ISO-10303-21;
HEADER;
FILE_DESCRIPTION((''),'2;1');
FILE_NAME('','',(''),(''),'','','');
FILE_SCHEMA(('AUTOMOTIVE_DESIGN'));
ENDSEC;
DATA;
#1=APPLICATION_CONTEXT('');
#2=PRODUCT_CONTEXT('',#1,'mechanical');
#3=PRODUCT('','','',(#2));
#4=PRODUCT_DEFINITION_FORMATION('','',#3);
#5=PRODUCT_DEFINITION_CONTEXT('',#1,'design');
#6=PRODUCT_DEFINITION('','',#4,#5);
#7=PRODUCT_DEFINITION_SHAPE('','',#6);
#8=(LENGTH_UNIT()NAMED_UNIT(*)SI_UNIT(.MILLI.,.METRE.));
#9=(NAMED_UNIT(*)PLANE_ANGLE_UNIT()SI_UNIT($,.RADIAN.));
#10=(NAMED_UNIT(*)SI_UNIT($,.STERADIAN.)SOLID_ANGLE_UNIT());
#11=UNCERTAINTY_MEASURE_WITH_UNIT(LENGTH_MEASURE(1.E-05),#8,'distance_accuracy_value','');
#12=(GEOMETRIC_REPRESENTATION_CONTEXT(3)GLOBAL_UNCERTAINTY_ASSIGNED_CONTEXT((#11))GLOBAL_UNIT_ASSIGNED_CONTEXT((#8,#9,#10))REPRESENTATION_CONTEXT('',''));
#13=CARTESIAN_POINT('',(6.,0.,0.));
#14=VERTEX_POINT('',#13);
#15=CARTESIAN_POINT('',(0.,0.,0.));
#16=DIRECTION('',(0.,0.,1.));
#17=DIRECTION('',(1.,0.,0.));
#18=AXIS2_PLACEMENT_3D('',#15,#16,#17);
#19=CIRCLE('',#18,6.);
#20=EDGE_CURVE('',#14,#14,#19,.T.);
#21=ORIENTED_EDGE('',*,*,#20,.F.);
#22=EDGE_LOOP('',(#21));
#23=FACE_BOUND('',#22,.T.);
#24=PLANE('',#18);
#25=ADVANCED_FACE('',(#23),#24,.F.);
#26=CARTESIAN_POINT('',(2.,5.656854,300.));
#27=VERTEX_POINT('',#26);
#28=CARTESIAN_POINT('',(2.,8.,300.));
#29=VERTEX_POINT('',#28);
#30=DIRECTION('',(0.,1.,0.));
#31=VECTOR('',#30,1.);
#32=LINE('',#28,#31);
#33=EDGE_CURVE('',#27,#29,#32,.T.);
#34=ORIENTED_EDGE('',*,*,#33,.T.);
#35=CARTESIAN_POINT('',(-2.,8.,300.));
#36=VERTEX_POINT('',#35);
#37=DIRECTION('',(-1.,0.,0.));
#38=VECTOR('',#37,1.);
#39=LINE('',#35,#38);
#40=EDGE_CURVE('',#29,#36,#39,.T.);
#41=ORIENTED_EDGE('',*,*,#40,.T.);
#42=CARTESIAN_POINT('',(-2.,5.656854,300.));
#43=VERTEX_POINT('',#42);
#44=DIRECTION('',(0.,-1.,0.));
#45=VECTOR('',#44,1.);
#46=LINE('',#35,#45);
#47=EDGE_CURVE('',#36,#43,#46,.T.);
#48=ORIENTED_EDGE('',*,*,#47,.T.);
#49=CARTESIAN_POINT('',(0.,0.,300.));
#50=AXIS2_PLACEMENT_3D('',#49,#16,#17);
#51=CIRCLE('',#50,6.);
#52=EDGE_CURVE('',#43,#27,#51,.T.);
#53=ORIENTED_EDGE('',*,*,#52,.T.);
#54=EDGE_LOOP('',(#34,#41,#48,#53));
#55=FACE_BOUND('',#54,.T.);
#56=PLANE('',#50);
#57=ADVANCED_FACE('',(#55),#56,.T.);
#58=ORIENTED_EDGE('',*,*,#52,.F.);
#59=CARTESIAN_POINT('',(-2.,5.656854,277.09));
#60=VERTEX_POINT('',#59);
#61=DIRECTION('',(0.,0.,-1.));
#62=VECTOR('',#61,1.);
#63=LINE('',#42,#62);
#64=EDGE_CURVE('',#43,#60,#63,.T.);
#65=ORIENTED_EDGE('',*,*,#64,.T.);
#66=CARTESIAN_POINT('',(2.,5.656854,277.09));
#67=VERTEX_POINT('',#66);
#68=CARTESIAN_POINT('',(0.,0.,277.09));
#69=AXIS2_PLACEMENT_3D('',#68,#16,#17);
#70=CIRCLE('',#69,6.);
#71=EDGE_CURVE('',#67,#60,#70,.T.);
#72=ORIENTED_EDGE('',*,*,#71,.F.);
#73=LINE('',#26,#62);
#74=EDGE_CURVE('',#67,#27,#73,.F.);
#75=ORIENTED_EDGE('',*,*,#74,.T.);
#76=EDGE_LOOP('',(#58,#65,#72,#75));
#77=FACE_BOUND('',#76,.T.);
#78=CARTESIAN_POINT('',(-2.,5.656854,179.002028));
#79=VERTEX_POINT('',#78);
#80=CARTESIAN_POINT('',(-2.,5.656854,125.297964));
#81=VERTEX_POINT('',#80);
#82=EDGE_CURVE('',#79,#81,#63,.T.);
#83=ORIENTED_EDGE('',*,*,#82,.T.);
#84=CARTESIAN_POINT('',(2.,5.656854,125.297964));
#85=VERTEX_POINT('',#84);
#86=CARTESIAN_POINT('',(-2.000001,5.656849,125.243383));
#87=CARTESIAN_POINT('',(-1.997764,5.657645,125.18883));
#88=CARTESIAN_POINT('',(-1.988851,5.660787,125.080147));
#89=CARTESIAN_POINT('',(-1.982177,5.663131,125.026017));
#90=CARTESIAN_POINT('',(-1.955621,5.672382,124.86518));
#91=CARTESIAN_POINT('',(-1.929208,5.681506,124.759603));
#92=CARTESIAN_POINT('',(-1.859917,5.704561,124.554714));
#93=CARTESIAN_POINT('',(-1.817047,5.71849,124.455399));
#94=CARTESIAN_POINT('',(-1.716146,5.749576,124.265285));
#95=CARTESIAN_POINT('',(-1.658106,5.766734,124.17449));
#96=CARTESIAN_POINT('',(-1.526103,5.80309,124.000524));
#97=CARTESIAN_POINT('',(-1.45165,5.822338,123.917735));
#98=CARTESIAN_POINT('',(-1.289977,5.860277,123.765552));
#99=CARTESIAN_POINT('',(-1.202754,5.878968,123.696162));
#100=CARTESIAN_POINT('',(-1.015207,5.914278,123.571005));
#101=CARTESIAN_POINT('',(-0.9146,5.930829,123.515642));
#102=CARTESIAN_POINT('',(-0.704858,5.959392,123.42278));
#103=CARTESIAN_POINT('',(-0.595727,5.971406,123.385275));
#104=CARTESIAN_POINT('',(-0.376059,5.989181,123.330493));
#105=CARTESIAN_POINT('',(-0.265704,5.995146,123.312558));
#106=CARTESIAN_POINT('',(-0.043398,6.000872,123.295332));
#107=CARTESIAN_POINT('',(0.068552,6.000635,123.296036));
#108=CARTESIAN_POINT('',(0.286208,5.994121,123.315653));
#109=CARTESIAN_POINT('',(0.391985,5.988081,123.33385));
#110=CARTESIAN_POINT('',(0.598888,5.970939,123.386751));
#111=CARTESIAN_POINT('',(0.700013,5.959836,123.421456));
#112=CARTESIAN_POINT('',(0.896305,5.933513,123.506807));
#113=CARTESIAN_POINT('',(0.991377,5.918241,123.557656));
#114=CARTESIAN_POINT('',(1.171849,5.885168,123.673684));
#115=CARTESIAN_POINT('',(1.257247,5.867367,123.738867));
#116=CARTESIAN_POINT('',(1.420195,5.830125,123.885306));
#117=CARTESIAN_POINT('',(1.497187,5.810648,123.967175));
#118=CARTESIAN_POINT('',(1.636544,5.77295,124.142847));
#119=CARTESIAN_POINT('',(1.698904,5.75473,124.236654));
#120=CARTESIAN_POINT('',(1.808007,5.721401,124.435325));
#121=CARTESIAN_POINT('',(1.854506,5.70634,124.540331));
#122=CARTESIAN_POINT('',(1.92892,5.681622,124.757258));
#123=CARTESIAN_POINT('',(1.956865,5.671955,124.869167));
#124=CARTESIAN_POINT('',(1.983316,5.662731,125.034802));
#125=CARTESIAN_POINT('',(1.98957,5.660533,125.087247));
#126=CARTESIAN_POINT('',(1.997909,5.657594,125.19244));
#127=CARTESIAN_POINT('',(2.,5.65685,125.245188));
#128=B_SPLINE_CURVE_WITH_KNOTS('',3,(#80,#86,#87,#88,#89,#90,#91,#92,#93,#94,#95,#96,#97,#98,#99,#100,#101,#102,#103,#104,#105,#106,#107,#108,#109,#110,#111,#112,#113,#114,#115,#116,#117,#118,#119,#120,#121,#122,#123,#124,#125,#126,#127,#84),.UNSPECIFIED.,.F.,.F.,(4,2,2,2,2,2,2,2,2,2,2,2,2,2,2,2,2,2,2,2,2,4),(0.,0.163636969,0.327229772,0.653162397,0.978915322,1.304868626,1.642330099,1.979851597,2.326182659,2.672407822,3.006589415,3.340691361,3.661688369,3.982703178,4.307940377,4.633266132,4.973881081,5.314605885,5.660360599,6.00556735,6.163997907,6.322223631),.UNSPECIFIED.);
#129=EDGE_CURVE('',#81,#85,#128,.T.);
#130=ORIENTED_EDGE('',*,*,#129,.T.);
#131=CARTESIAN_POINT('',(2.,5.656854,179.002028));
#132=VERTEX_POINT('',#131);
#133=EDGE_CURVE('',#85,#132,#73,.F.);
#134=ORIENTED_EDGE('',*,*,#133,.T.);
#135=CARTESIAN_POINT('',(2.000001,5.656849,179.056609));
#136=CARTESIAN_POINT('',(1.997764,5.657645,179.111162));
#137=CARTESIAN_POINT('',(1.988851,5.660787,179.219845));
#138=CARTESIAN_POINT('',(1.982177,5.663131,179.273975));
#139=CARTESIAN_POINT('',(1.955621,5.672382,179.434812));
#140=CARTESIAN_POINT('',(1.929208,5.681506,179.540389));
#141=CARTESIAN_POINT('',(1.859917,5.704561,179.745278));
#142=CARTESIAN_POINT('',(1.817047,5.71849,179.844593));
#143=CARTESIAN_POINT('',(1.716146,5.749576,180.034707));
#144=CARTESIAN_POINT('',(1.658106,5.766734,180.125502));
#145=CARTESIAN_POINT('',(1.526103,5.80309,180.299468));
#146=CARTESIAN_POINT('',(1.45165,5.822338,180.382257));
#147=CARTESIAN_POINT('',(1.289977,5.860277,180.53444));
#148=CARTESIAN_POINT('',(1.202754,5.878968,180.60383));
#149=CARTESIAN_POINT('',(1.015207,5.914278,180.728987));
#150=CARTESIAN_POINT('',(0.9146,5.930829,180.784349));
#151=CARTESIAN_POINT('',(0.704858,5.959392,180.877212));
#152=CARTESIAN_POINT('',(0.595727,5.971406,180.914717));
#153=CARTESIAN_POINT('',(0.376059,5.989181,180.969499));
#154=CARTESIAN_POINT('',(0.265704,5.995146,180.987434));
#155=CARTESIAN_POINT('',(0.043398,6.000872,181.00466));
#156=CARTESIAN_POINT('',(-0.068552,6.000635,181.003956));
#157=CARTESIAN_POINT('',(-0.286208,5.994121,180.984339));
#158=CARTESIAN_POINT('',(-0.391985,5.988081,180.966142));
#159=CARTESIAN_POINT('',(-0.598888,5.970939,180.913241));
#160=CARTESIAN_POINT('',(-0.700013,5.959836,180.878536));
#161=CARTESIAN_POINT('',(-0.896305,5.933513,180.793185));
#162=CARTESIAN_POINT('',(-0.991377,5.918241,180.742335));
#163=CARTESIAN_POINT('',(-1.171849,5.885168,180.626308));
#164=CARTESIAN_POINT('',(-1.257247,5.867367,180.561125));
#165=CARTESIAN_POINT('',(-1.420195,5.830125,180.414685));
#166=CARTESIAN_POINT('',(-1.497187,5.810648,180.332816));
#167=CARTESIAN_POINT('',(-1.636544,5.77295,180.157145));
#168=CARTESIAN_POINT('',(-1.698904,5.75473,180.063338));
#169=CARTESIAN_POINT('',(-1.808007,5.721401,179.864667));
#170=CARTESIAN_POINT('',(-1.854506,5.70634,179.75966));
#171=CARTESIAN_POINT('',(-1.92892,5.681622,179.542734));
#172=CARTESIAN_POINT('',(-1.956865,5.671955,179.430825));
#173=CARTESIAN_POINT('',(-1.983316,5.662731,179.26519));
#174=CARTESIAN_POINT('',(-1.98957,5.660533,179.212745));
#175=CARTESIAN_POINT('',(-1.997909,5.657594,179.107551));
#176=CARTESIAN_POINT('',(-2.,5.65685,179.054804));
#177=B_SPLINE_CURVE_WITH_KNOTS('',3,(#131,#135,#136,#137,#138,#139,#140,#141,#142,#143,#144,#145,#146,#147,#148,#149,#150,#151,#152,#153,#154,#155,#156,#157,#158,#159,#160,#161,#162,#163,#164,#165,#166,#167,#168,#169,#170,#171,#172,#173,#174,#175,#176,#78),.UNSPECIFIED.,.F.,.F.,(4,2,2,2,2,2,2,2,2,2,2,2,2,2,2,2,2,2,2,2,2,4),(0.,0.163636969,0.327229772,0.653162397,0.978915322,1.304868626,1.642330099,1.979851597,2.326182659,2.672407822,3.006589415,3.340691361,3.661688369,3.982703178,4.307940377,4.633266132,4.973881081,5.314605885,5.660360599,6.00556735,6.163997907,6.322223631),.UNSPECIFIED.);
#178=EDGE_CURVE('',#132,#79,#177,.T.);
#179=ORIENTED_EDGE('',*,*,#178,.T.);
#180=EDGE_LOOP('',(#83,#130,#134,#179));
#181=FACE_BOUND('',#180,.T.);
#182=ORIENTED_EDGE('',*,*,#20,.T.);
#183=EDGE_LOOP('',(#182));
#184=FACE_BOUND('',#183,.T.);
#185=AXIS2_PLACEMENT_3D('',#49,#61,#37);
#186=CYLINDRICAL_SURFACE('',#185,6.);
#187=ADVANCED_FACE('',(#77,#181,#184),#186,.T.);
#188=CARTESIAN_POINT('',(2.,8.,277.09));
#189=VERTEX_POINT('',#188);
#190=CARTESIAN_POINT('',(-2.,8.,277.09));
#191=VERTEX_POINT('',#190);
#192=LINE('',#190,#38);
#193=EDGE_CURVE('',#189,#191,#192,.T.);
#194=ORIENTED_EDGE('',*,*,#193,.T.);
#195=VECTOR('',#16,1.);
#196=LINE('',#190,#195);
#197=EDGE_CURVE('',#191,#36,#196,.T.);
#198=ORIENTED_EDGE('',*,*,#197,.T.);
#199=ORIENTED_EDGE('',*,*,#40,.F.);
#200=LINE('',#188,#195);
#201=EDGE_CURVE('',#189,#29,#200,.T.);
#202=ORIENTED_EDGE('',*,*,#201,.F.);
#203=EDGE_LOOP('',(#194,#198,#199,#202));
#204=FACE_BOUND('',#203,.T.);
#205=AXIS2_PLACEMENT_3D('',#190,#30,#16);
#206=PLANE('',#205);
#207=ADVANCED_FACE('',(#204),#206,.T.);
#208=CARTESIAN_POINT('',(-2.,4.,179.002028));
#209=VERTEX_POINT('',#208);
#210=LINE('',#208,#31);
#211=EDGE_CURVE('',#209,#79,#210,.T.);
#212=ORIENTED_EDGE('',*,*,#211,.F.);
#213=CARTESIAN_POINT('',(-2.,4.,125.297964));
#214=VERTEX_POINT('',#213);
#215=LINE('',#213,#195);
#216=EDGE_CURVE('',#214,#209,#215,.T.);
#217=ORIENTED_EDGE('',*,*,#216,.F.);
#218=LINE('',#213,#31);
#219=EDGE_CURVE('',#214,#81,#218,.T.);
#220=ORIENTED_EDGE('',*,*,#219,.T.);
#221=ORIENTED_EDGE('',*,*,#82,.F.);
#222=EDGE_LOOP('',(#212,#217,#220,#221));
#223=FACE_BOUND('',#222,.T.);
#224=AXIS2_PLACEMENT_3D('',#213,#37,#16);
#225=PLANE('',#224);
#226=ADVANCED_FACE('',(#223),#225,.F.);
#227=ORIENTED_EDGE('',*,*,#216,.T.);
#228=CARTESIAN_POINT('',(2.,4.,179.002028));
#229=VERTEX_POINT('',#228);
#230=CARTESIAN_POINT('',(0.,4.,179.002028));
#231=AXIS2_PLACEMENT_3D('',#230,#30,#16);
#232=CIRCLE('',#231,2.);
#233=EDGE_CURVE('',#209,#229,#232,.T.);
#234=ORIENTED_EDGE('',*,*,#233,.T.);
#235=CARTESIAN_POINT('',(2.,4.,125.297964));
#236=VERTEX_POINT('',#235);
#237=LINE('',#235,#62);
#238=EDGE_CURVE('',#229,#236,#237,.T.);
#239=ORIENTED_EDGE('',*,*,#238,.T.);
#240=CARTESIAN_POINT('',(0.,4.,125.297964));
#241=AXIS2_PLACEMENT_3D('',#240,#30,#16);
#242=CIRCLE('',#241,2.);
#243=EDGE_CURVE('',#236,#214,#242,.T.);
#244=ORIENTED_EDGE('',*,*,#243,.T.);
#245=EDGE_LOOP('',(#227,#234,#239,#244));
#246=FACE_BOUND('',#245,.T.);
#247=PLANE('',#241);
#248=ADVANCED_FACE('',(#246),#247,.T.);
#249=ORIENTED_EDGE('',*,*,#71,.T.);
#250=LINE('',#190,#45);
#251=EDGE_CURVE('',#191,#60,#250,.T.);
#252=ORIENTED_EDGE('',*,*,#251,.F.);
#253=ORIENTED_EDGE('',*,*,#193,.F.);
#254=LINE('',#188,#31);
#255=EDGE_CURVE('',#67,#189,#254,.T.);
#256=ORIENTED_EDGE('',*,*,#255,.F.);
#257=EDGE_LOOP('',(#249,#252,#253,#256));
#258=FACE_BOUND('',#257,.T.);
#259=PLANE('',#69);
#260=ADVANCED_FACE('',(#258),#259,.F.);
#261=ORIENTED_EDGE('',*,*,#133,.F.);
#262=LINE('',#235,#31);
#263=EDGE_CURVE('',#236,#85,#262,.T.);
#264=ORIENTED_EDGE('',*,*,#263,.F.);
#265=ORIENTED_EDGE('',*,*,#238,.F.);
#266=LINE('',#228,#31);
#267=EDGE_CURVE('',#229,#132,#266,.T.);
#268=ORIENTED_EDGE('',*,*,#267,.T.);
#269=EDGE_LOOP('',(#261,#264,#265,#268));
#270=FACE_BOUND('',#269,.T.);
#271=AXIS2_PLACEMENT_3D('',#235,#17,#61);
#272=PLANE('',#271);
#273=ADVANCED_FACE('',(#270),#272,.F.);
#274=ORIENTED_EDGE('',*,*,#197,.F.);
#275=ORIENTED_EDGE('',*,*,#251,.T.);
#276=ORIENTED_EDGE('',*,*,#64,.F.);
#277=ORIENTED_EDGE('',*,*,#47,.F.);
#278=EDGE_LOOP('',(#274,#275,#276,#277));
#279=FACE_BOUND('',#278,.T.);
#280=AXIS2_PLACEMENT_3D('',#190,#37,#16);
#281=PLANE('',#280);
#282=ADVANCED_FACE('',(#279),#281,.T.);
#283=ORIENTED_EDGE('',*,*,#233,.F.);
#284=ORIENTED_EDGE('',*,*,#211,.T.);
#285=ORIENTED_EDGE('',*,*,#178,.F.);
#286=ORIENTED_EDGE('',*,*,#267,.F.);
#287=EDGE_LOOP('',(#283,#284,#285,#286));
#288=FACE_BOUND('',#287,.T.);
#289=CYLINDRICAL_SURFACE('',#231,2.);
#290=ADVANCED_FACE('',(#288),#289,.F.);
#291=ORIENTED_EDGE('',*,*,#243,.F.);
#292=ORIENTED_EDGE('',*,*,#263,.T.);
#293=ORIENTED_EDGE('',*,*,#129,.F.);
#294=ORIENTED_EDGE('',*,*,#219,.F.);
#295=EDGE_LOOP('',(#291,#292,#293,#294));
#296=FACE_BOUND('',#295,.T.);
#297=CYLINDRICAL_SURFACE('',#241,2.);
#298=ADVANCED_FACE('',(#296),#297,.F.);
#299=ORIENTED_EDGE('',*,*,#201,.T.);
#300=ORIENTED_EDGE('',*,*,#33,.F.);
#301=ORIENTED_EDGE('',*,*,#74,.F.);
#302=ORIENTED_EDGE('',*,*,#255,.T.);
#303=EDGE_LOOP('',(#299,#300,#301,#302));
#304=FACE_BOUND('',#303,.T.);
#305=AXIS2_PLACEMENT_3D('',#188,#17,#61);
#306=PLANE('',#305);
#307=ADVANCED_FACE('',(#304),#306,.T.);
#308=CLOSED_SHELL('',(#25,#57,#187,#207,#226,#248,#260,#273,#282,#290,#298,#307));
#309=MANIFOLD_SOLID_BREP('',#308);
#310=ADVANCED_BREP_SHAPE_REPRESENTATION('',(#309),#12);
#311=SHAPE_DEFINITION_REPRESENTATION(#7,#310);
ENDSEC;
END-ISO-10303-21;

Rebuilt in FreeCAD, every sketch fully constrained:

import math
import FreeCAD as App
import Part
import Sketcher

doc = App.newDocument("Part")
body = doc.addObject("PartDesign::Body", "Body")

# Sketch on XY plane
sketch1 = body.newObject("Sketcher::SketchObject", "Sketch")
sketch1.AttachmentSupport = (doc.getObject("XY_Plane"), [""])
sketch1.MapMode = "FlatFace"
sketch1.addGeometry(Part.Circle(App.Vector(0, 0, 0), App.Vector(0, 0, 1), 6), False)
sketch1.addConstraint([
    Sketcher.Constraint("Coincident", 0, 3, -1, 1),
    Sketcher.Constraint("Diameter", 0, 12.0),
])
pad1 = body.newObject("PartDesign::Pad", "Pad")
pad1.Profile = sketch1
pad1.Length = 300

# Sketch on XY plane
sketch2 = body.newObject("Sketcher::SketchObject", "Sketch001")
sketch2.AttachmentSupport = (doc.getObject("XY_Plane"), [""])
sketch2.MapMode = "FlatFace"
sketch2.AttachmentOffset = App.Placement(App.Vector(0, 0, 300), App.Rotation())
sketch2.addGeometry([
    Part.LineSegment(App.Vector(-2, 8, 0), App.Vector(-2, 2.583143, 0)),
    Part.LineSegment(App.Vector(-2, 2.583143, 0), App.Vector(2, 2.583143, 0)),
    Part.LineSegment(App.Vector(2, 2.583143, 0), App.Vector(2, 8, 0)),
    Part.LineSegment(App.Vector(2, 8, 0), App.Vector(-2, 8, 0)),
], False)
sketch2.addConstraint([
    Sketcher.Constraint("Coincident", 0, 2, 1, 1),
    Sketcher.Constraint("Coincident", 1, 2, 2, 1),
    Sketcher.Constraint("Coincident", 2, 2, 3, 1),
    Sketcher.Constraint("Coincident", 3, 2, 0, 1),
    Sketcher.Constraint("Vertical", 0),
    Sketcher.Constraint("Horizontal", 1),
    Sketcher.Constraint("Vertical", 2),
    Sketcher.Constraint("Horizontal", 3),
    Sketcher.Constraint("DistanceX", 1, 1, 1, 2, 4.0),
    Sketcher.Constraint("DistanceX", 0, 2, -1, 1, 2.0),
    Sketcher.Constraint("DistanceY", -1, 1, 2, 2, 8.0),
    Sketcher.Constraint("DistanceY", 0, 2, 0, 1, 5.416857),
])
pad2 = body.newObject("PartDesign::Pad", "Pad001")
pad2.Profile = sketch2
pad2.Length = 22.91
pad2.Reversed = True

# Sketch on XZ plane
sketch3 = body.newObject("Sketcher::SketchObject", "Sketch002")
sketch3.AttachmentSupport = (doc.getObject("XZ_Plane"), [""])
sketch3.MapMode = "FlatFace"
sketch3.AttachmentOffset = App.Placement(App.Vector(0, 0, -6), App.Rotation())
sketch3.addGeometry([
    Part.LineSegment(App.Vector(2, 179.002028, 0), App.Vector(2, 125.297964, 0)),
    Part.ArcOfCircle(Part.Circle(App.Vector(0, 125.297964, 0), App.Vector(0, 0, 1), 2), math.radians(180), math.radians(360)),
    Part.LineSegment(App.Vector(-2, 125.297964, 0), App.Vector(-2, 179.002028, 0)),
    Part.ArcOfCircle(Part.Circle(App.Vector(0, 179.002028, 0), App.Vector(0, 0, 1), 2), math.radians(0), math.radians(180)),
], False)
sketch3.addConstraint([
    Sketcher.Constraint("Tangent", 0, 2, 1, 2),
    Sketcher.Constraint("Tangent", 1, 1, 2, 1),
    Sketcher.Constraint("Tangent", 2, 2, 3, 2),
    Sketcher.Constraint("Tangent", 3, 1, 0, 1),
    Sketcher.Constraint("Vertical", 0),
    Sketcher.Constraint("Vertical", 2),
    Sketcher.Constraint("PointOnObject", 1, 3, -2),
    Sketcher.Constraint("Radius", 1, 2.0),
    Sketcher.Constraint("DistanceY", 0, 2, 0, 1, 53.704063),
    Sketcher.Constraint("DistanceY", -1, 1, 1, 3, 125.297964),
])
pocket1 = body.newObject("PartDesign::Pocket", "Pocket")
pocket1.Profile = sketch3
pocket1.Length = 2
pocket1.Reversed = True

doc.recompute()
